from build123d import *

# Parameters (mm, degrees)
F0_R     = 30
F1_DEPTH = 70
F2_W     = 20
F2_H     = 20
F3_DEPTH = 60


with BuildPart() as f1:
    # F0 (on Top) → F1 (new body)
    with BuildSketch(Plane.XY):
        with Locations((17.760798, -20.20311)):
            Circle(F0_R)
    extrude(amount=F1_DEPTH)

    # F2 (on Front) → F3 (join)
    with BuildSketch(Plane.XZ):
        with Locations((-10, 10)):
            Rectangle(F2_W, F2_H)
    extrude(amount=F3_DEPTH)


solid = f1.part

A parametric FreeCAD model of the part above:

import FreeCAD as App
import Part
import Sketcher
Q = App.Units.Quantity


def add_polygon(sketch, points):
    """Adds a closed chain of lines whose ends are joined by coincident constraints."""
    first, n = sketch.GeometryCount, len(points)
    for a, b in zip(points, points[1:] + points[:1]):
        sketch.addGeometry(Part.LineSegment(App.Vector(*a, 0), App.Vector(*b, 0)), False)
    for i in range(n):
        sketch.addConstraint(Sketcher.Constraint("Coincident", first + i, 2, first + (i + 1) % n, 1))

doc = App.newDocument("Part")
body = doc.addObject("PartDesign::Body", "Body")

# Sketch on XY plane
sketch1 = doc.addObject("Sketcher::SketchObject", "Sketch")
body.addObject(sketch1)
sketch1.AttachmentSupport = (doc.XY_Plane, [""])
sketch1.MapMode = "FlatFace"
sketch1.addGeometry(Part.Circle(App.Vector(18, -20, 0), App.Vector(0, 0, 1), 30), False)
sketch1.addConstraint(Sketcher.Constraint("Diameter", 0, Q("60 mm")))
sketch1.addConstraint(Sketcher.Constraint("DistanceX", -1, 1, 0, 3, Q("17.760798 mm")))
sketch1.addConstraint(Sketcher.Constraint("DistanceY", 0, 3, -1, 1, Q("20.20311 mm")))
pad1 = doc.addObject("PartDesign::Pad", "Pad")
body.addObject(pad1)
pad1.Profile = sketch1
pad1.Length = 70

# Sketch on XZ plane
sketch2 = doc.addObject("Sketcher::SketchObject", "Sketch001")
body.addObject(sketch2)
sketch2.AttachmentSupport = (doc.XZ_Plane, [""])
sketch2.MapMode = "FlatFace"
add_polygon(sketch2, [(-20, 20), (-20, 0), (0, 0), (0, 20)])  # lines 0-3
sketch2.addConstraint(Sketcher.Constraint("Vertical", 0))
sketch2.addConstraint(Sketcher.Constraint("Horizontal", 1))
sketch2.addConstraint(Sketcher.Constraint("Vertical", 2))
sketch2.addConstraint(Sketcher.Constraint("Horizontal", 3))
sketch2.addConstraint(Sketcher.Constraint("Coincident", 1, 2, -1, 1))
sketch2.addConstraint(Sketcher.Constraint("Equal", 3, 0))
sketch2.addConstraint(Sketcher.Constraint("DistanceX", 1, 1, 1, 2, Q("20 mm")))
pad2 = doc.addObject("PartDesign::Pad", "Pad001")
body.addObject(pad2)
pad2.Profile = sketch2
pad2.Length = 60

doc.recompute()
